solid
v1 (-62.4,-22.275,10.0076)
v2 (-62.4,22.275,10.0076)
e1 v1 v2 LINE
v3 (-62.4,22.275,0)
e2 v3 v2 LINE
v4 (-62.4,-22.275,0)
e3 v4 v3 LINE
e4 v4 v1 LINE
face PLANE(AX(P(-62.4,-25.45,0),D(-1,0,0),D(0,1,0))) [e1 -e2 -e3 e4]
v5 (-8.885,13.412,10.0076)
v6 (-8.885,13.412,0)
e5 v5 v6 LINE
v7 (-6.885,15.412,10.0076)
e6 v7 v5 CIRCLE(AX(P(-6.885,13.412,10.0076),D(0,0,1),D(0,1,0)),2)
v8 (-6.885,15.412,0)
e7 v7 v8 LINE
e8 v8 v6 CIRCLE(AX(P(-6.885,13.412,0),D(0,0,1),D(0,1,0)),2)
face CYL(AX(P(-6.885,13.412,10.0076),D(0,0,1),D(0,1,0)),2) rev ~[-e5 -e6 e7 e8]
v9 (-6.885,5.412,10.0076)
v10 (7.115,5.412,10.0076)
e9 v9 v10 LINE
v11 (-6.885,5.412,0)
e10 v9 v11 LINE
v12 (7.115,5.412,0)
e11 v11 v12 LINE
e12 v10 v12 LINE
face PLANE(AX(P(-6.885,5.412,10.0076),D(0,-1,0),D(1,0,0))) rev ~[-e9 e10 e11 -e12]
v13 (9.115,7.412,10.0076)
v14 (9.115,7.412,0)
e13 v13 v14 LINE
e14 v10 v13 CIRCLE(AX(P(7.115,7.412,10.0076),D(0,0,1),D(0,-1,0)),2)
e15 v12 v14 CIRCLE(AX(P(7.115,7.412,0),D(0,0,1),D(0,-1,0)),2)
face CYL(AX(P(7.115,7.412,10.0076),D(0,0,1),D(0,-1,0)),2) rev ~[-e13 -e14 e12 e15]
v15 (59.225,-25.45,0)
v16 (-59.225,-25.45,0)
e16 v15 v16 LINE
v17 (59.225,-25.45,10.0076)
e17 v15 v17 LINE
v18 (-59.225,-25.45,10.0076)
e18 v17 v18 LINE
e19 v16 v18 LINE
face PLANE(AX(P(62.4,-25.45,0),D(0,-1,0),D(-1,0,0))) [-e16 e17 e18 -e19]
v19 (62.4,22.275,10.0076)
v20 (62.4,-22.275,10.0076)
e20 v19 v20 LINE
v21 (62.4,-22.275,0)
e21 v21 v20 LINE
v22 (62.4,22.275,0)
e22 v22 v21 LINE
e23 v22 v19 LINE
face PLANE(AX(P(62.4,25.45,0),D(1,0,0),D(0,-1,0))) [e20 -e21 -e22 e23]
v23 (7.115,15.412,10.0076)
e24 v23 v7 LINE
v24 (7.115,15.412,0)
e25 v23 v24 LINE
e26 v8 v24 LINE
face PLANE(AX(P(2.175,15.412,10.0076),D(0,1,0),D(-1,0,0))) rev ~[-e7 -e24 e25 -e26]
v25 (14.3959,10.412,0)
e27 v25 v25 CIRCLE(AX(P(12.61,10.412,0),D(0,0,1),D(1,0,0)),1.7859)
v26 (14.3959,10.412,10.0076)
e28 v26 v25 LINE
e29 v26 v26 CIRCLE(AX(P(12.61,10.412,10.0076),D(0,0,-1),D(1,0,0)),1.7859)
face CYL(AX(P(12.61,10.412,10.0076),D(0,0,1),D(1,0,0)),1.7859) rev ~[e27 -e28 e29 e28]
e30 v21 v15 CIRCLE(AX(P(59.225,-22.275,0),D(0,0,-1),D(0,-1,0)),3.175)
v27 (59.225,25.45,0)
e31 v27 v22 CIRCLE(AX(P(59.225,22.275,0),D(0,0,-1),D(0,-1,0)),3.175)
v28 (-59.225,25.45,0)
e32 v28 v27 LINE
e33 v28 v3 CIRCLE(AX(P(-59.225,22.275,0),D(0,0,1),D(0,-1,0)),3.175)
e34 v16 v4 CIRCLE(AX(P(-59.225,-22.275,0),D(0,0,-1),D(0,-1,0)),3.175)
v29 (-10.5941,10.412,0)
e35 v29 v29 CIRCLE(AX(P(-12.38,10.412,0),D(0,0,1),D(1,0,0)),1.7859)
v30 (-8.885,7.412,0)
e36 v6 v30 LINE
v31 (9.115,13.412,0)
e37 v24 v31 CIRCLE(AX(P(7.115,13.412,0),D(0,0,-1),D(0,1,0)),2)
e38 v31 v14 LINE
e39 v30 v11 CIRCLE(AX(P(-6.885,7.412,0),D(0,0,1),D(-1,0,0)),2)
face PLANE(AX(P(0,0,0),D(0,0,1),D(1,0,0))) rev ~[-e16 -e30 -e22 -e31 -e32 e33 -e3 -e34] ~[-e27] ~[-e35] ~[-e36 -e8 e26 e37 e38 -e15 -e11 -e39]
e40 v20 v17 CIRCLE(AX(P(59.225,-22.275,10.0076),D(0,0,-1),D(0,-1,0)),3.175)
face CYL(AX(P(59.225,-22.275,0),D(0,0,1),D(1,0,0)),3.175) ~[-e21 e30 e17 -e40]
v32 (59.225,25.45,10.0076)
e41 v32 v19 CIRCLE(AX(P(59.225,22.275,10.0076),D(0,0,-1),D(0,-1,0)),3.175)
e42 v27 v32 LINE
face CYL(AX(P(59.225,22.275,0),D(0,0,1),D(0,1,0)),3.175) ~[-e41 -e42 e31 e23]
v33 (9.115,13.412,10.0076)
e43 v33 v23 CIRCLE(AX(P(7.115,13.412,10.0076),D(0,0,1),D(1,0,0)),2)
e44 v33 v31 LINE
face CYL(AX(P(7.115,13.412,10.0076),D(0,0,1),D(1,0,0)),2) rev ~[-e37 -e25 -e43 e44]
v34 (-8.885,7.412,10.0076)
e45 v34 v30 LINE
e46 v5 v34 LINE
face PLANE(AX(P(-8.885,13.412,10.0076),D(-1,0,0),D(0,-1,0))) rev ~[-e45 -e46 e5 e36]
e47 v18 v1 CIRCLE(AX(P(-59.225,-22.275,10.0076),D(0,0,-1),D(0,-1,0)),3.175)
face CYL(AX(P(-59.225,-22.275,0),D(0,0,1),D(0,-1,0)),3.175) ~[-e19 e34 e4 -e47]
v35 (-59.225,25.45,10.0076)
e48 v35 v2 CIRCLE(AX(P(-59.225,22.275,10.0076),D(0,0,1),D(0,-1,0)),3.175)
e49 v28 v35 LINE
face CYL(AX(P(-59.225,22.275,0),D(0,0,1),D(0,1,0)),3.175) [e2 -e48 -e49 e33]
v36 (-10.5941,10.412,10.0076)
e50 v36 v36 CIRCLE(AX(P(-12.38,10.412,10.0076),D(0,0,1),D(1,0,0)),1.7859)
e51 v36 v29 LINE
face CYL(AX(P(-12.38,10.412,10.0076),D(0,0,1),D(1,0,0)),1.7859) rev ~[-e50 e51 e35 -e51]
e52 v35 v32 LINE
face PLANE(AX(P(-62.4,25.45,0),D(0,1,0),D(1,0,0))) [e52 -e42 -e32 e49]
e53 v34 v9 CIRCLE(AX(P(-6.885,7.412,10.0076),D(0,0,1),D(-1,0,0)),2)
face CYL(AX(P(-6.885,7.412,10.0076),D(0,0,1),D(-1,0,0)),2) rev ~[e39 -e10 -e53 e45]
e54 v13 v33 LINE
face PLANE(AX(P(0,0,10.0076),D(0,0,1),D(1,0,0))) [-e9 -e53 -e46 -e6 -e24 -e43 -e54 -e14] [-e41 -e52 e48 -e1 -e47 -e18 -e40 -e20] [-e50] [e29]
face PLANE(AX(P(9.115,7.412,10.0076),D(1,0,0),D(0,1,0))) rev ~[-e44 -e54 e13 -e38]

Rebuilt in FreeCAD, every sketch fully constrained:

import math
import FreeCAD as App
import Part
import Sketcher


def edges_at(feature, points):
    """Names of the edges that pass closest to the given points."""
    edges = feature.Shape.Edges
    near = lambda p: min(range(len(edges)), key=lambda i: edges[i].distToShape(Part.Vertex(*p))[0])
    return sorted({f"Edge{near(p) + 1}" for p in points})

doc = App.newDocument("Part")
body = doc.addObject("PartDesign::Body", "Body")

# Sketch on XY plane
sketch1 = body.newObject("Sketcher::SketchObject", "Sketch")
sketch1.AttachmentSupport = (doc.getObject("XY_Plane"), [""])
sketch1.MapMode = "FlatFace"
sketch1.addGeometry([
    Part.LineSegment(App.Vector(62.4, 25.45, 0), App.Vector(-62.4, 25.45, 0)),
    Part.LineSegment(App.Vector(-62.4, 25.45, 0), App.Vector(-62.4, -25.45, 0)),
    Part.LineSegment(App.Vector(-62.4, -25.45, 0), App.Vector(62.4, -25.45, 0)),
    Part.LineSegment(App.Vector(62.4, -25.45, 0), App.Vector(62.4, 25.45, 0)),
], False)
sketch1.addConstraint([
    Sketcher.Constraint("Coincident", 0, 2, 1, 1),
    Sketcher.Constraint("Coincident", 1, 2, 2, 1),
    Sketcher.Constraint("Coincident", 2, 2, 3, 1),
    Sketcher.Constraint("Coincident", 3, 2, 0, 1),
    Sketcher.Constraint("Horizontal", 0),
    Sketcher.Constraint("Vertical", 1),
    Sketcher.Constraint("Horizontal", 2),
    Sketcher.Constraint("Vertical", 3),
    Sketcher.Constraint("Symmetric", 0, 2, 2, 2, -1, 1),
    Sketcher.Constraint("DistanceX", 0, 2, 0, 1, 124.8),
    Sketcher.Constraint("DistanceY", 1, 2, 1, 1, 50.9),
])
pad1 = body.newObject("PartDesign::Pad", "Pad")
pad1.Profile = sketch1
pad1.Length = 10.0076
doc.recompute()

fillet = body.newObject("PartDesign::Fillet", "Fillet")
fillet.Base = (pad1, edges_at(pad1, [(62.4, 25.45, 5.004), (62.4, -25.45, 5.004), (-62.4, -25.45, 5.004)]))
fillet.Radius = 3.175
doc.recompute()

fillet2 = body.newObject("PartDesign::Fillet", "Fillet001")
fillet2.Base = (fillet, edges_at(fillet, [(-62.4, 25.45, 5.004)]))
fillet2.Radius = 3.175

# Sketch on XY plane
sketch2 = body.newObject("Sketcher::SketchObject", "Sketch001")
sketch2.AttachmentSupport = (doc.getObject("XY_Plane"), [""])
sketch2.MapMode = "FlatFace"
sketch2.AttachmentOffset = App.Placement(App.Vector(0, 0, 10.0076), App.Rotation())
sketch2.addGeometry([
    Part.LineSegment(App.Vector(-8.885, 13.412, 0), App.Vector(-8.885, 7.412, 0)),  # 0
    Part.ArcOfCircle(Part.Circle(App.Vector(-6.885, 7.412, 0), App.Vector(0, 0, 1), 2), math.radians(180), math.radians(270)),  # 1
    Part.LineSegment(App.Vector(-6.885, 5.412, 0), App.Vector(7.115, 5.412, 0)),  # 2
    Part.ArcOfCircle(Part.Circle(App.Vector(7.115, 7.412, 0), App.Vector(0, 0, 1), 2), math.radians(-90), math.radians(0)),  # 3
    Part.LineSegment(App.Vector(9.115, 7.412, 0), App.Vector(9.115, 13.412, 0)),  # 4
    Part.ArcOfCircle(Part.Circle(App.Vector(7.115, 13.412, 0), App.Vector(0, 0, 1), 2), math.radians(0), math.radians(90)),  # 5
    Part.LineSegment(App.Vector(7.115, 15.412, 0), App.Vector(-6.885, 15.412, 0)),  # 6
    Part.ArcOfCircle(Part.Circle(App.Vector(-6.885, 13.412, 0), App.Vector(0, 0, 1), 2), math.radians(90), math.radians(180)),  # 7
    Part.Circle(App.Vector(12.61, 10.412, 0), App.Vector(0, 0, 1), 1.7859),  # 8
    Part.Circle(App.Vector(-12.38, 10.412, 0), App.Vector(0, 0, 1), 1.7859),  # 9
], False)
sketch2.addConstraint([
    Sketcher.Constraint("Tangent", 0, 2, 1, 1),
    Sketcher.Constraint("Tangent", 1, 2, 2, 1),
    Sketcher.Constraint("Tangent", 2, 2, 3, 1),
    Sketcher.Constraint("Tangent", 3, 2, 4, 1),
    Sketcher.Constraint("Tangent", 4, 2, 5, 1),
    Sketcher.Constraint("Tangent", 5, 2, 6, 1),
    Sketcher.Constraint("Tangent", 6, 2, 7, 1),
    Sketcher.Constraint("Tangent", 7, 2, 0, 1),
    Sketcher.Constraint("Vertical", 0),
    Sketcher.Constraint("Horizontal", 2),
    Sketcher.Constraint("Vertical", 4),
    Sketcher.Constraint("Horizontal", 6),
    Sketcher.Constraint("Equal", 1, 3),
    Sketcher.Constraint("Equal", 3, 5),
    Sketcher.Constraint("Equal", 5, 7),
    Sketcher.Constraint("Equal", 8, 9),
    Sketcher.Constraint("Horizontal", 8, 3, 9, 3),
    Sketcher.Constraint("Radius", 1, 2.0),
    Sketcher.Constraint("DistanceX", 2, 1, 2, 2, 14.0),
    Sketcher.Constraint("DistanceY", 0, 2, 0, 1, 6.0),
    Sketcher.Constraint("DistanceY", 3, 3, 8, 3, 3.0),
    Sketcher.Constraint("Diameter", 8, 3.5718),
    Sketcher.Constraint("DistanceX", -1, 1, 8, 3, 12.61),
    Sketcher.Constraint("DistanceX", 9, 3, -1, 1, 12.38),
    Sketcher.Constraint("DistanceX", 1, 3, -1, 1, 6.885),
    Sketcher.Constraint("DistanceY", -1, 1, 1, 3, 7.412),
])
pocket1 = body.newObject("PartDesign::Pocket", "Pocket")
pocket1.Profile = sketch2
pocket1.Length = 10.0076

doc.recompute()
